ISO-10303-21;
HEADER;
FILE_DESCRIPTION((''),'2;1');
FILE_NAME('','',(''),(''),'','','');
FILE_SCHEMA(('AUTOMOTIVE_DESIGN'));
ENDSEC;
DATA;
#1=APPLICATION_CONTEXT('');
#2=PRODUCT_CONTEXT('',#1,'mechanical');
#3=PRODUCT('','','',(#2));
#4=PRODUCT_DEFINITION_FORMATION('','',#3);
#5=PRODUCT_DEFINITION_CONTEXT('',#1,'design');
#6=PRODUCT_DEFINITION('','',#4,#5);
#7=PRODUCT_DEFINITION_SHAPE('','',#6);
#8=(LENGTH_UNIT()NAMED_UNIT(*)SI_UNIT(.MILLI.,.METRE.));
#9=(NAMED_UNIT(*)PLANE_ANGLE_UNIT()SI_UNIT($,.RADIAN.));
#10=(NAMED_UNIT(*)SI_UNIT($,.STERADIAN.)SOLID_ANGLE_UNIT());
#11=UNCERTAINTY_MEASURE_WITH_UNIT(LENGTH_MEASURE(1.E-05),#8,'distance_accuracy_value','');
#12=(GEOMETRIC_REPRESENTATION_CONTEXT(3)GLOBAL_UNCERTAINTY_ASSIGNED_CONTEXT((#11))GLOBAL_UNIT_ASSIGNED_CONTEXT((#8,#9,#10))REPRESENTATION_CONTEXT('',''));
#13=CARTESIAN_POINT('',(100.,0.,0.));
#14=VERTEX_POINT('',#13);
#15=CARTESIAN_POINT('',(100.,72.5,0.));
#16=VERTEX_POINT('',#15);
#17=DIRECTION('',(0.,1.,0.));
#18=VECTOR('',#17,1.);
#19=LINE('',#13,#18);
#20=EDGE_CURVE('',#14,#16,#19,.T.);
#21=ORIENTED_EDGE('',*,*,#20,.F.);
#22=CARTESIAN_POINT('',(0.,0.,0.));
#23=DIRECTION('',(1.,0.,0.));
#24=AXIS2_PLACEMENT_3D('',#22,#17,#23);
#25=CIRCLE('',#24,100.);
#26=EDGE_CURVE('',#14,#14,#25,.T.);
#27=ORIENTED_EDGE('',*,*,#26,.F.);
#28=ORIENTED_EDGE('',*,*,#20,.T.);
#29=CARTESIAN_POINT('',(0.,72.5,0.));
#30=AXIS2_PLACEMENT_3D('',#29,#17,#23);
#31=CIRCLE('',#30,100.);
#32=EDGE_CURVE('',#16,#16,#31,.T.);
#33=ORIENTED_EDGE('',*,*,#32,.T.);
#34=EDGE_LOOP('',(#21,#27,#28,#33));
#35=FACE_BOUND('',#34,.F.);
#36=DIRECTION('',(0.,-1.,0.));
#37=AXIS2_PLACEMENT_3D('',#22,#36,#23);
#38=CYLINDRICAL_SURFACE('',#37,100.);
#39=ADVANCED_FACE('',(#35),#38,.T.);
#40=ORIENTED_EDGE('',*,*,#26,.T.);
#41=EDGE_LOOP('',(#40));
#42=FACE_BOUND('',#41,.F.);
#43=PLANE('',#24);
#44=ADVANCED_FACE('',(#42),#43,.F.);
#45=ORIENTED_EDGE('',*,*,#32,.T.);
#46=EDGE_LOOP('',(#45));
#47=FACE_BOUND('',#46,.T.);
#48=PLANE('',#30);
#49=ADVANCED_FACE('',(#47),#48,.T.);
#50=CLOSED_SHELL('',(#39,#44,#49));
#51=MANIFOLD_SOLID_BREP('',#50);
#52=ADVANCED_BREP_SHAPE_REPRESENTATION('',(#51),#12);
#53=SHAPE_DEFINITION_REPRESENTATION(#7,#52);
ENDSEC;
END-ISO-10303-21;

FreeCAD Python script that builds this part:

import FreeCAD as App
import Part
import Sketcher
from FreeCAD import Vector
Q = App.Units.Quantity

doc = App.newDocument("Part")
body = doc.addObject("PartDesign::Body", "Body")

sketch1 = doc.addObject("Sketcher::SketchObject", "Sketch")
body.addObject(sketch1)
sketch1.AttachmentSupport = (doc.XZ_Plane, [""])
sketch1.MapMode = "FlatFace"
sketch1.addGeometry(Part.Circle(Vector(0, 0, 0), Vector(0, 0, 1), 100), False)
sketch1.addConstraint([
    Sketcher.Constraint("Coincident", 0, 3, -1, 1),
    Sketcher.Constraint("Diameter", 0, Q("200 mm")),
])
pad1 = doc.addObject("PartDesign::Pad", "Pad")
body.addObject(pad1)
pad1.Profile = sketch1
pad1.Length = 72.5
pad1.Reversed = True

doc.recompute()
